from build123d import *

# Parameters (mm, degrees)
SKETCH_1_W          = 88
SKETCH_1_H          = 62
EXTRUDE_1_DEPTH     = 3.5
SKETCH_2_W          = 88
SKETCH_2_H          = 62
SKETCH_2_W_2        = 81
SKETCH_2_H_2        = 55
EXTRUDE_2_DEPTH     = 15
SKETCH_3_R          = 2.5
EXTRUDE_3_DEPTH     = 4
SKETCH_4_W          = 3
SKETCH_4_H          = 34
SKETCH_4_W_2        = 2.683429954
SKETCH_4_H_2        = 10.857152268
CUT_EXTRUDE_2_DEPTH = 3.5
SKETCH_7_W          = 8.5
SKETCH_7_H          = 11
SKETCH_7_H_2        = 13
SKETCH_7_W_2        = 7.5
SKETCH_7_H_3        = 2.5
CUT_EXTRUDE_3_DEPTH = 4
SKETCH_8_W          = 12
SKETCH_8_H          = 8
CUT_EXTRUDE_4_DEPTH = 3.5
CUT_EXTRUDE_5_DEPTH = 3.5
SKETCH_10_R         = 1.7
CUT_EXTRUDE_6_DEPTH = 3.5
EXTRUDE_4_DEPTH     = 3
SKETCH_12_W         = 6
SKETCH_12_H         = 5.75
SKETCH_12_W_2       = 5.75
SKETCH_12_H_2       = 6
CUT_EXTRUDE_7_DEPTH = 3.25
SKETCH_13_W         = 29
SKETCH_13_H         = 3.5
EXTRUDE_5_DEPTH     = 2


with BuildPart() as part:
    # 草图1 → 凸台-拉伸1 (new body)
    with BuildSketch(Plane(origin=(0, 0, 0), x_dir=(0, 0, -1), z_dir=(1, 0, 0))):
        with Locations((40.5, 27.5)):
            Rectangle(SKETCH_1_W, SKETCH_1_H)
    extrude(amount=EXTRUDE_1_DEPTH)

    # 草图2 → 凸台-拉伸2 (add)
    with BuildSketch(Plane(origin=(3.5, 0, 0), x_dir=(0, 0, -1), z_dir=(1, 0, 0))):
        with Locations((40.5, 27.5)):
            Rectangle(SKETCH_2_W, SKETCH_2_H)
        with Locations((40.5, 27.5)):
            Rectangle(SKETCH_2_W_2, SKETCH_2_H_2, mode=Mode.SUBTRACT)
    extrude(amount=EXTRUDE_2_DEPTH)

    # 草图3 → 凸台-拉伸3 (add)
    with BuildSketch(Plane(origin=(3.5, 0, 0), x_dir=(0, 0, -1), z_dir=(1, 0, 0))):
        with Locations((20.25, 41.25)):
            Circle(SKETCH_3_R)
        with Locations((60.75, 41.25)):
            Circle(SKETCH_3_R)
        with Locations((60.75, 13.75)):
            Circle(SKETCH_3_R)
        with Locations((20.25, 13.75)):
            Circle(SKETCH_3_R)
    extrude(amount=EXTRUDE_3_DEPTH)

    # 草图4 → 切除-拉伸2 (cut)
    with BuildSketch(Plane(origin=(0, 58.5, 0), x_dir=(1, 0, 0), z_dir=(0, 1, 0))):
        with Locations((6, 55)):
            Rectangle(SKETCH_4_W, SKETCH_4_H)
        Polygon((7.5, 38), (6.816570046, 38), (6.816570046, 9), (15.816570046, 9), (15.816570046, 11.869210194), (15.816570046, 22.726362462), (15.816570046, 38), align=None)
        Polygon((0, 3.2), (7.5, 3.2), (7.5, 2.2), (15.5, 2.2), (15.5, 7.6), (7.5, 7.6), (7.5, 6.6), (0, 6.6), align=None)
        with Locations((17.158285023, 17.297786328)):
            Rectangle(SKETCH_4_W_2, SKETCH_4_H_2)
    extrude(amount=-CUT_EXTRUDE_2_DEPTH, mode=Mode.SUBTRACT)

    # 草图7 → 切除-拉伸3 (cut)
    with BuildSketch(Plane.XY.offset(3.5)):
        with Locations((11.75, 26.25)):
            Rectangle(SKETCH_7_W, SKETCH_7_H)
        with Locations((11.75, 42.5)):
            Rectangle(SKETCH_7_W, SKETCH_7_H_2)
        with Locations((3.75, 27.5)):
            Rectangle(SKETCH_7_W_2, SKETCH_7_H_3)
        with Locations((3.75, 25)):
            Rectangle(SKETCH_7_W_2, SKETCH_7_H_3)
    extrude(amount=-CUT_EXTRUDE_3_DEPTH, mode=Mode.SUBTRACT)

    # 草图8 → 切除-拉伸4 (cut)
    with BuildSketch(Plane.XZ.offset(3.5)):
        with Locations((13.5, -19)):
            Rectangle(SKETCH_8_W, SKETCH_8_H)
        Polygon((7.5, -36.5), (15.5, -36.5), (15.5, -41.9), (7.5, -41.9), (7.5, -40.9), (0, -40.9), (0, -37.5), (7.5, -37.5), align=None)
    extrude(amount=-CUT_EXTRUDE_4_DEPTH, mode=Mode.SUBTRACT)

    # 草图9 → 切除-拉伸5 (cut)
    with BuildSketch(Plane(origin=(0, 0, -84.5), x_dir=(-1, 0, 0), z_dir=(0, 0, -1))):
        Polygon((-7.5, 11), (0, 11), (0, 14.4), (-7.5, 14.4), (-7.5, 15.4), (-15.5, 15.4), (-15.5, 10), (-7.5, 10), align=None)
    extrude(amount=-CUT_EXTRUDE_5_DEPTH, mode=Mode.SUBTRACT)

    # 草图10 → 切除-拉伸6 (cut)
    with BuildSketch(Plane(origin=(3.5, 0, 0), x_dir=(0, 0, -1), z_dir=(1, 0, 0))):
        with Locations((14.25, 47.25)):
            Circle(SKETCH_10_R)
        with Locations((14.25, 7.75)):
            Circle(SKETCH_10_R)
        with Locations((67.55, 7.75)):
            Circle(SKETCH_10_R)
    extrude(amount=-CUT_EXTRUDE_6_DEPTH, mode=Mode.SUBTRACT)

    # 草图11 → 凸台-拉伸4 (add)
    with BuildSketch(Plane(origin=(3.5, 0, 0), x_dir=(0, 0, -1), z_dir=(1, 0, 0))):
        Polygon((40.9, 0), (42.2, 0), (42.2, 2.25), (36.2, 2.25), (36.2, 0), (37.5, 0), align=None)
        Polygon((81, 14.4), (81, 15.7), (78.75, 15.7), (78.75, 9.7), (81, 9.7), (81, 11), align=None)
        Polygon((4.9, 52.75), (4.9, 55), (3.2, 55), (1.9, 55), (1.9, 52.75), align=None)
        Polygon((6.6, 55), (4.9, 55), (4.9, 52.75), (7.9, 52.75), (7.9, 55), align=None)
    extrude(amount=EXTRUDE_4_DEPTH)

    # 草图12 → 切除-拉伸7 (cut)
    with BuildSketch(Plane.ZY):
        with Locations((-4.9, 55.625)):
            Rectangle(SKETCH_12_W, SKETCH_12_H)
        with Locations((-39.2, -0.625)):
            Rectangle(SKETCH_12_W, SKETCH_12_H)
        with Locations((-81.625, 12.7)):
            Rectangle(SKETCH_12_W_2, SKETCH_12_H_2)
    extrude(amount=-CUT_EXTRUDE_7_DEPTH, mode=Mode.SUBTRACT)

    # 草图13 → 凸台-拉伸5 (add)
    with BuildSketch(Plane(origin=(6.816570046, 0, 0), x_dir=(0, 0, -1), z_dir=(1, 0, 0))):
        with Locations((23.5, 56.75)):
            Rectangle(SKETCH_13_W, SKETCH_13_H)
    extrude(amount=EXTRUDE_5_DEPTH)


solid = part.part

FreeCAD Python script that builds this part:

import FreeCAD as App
import Part
import Sketcher

V = App.Vector
Q = App.Units.Quantity

doc = App.newDocument("Part")
params = doc.addObject("Spreadsheet::Sheet", "Params")
for row, (alias, value) in enumerate([
    ("sketch1_width", "62 mm"),
    ("sketch1_height", "88 mm"),
    ("pad1_length", "3.5 mm"),
    ("sketch2_width", "62 mm"),
    ("sketch2_width2", "55 mm"),
    ("sketch2_height", "88 mm"),
    ("sketch2_height2", "81 mm"),
    ("pad2_length", "15 mm"),
    ("sketch3_diameter", "5 mm"),
    ("pad3_length", "4 mm"),
    ("sketch4_width", "9 mm"),
    ("sketch4_width2", "3 mm"),
    ("sketch4_width3", "8 mm"),
    ("sketch4_height", "34 mm"),
    ("sketch4_height2", "29 mm"),
    ("pocket1_length", "3.5 mm"),
    ("sketch5_height", "3 mm"),
    ("sketch5_height2", "11 mm"),
    ("sketch5_height3", "13 mm"),
    ("sketch5_width", "8.5 mm"),
    ("sketch5_width2", "7.5 mm"),
    ("pocket2_length", "4 mm"),
    ("sketch6_width", "12 mm"),
    ("sketch6_width2", "8 mm"),
    ("sketch6_height", "1 mm"),
    ("sketch6_width3", "7.5 mm"),
    ("sketch6_height2", "3.4 mm"),
    ("pocket3_length", "3.5 mm"),
    ("sketch7_width", "8 mm"),
    ("sketch7_height", "1 mm"),
    ("sketch7_width2", "7.5 mm"),
    ("sketch7_height2", "3.4 mm"),
    ("pocket4_length", "3.5 mm"),
    ("sketch8_diameter", "3.4 mm"),
    ("pocket5_length", "3.5 mm"),
    ("sketch9_width", "6 mm"),
    ("sketch9_width2", "2.25 mm"),
    ("pad4_length", "3 mm"),
    ("sketch10_width", "6 mm"),
    ("sketch10_width2", "5.75 mm"),
    ("pocket6_length", "3.25 mm"),
    ("sketch11_height", "29 mm"),
    ("sketch11_width", "3.5 mm"),
    ("pad5_length", "2 mm"),
], start=1):
    params.set(f"A{row}", alias)
    params.set(f"B{row}", "=" + value)
    params.setAlias(f"B{row}", alias)

body = doc.addObject("PartDesign::Body", "Body")

# Sketch on YZ plane
sketch1 = doc.addObject("Sketcher::SketchObject", "Sketch")
body.addObject(sketch1)
sketch1.AttachmentSupport = (doc.YZ_Plane, [""])
sketch1.MapMode = "FlatFace"
sketch1.addGeometry([
    Part.LineSegment(V(58, 4, 0), V(-4, 4, 0)),
    Part.LineSegment(V(-4, 4, 0), V(-4, -84, 0)),
    Part.LineSegment(V(-4, -84, 0), V(58, -84, 0)),
    Part.LineSegment(V(58, -84, 0), V(58, 4, 0)),
], False)
sketch1.addConstraint([
    Sketcher.Constraint("Coincident", 0, 2, 1, 1),
    Sketcher.Constraint("Coincident", 1, 2, 2, 1),
    Sketcher.Constraint("Coincident", 2, 2, 3, 1),
    Sketcher.Constraint("Coincident", 3, 2, 0, 1),
    Sketcher.Constraint("Horizontal", 0),
    Sketcher.Constraint("Vertical", 1),
    Sketcher.Constraint("Horizontal", 2),
    Sketcher.Constraint("Vertical", 3),
    Sketcher.Constraint("DistanceX", 0, 2, 0, 1, Q("62 mm")),
    Sketcher.Constraint("DistanceY", 1, 2, 1, 1, Q("88 mm")),
    Sketcher.Constraint("DistanceX", 0, 2, -1, 1, Q("3.5 mm")),
    Sketcher.Constraint("DistanceY", -1, 1, 0, 2, Q("3.5 mm")),
])
sketch1.setExpression("Constraints[8]", "Params.sketch1_width")
sketch1.setExpression("Constraints[9]", "Params.sketch1_height")
pad1 = doc.addObject("PartDesign::Pad", "Pad")
body.addObject(pad1)
pad1.Profile = sketch1
pad1.setExpression("Length", "Params.pad1_length")

# Sketch on YZ plane
sketch2 = doc.addObject("Sketcher::SketchObject", "Sketch001")
body.addObject(sketch2)
sketch2.AttachmentSupport = (doc.YZ_Plane, [""])
sketch2.MapMode = "FlatFace"
sketch2.AttachmentOffset = App.Placement(V(0, 0, 3.5), App.Rotation())
sketch2.addGeometry([
    Part.LineSegment(V(58, 4, 0), V(-4, 4, 0)),  # 0
    Part.LineSegment(V(-4, 4, 0), V(-4, -84, 0)),  # 1
    Part.LineSegment(V(-4, -84, 0), V(58, -84, 0)),  # 2
    Part.LineSegment(V(58, -84, 0), V(58, 4, 0)),  # 3
    Part.LineSegment(V(0, -81, 0), V(0, 0, 0)),  # 4
    Part.LineSegment(V(0, 0, 0), V(55, 0, 0)),  # 5
    Part.LineSegment(V(55, 0, 0), V(55, -81, 0)),  # 6
    Part.LineSegment(V(55, -81, 0), V(0, -81, 0)),  # 7
], False)
sketch2.addConstraint([
    Sketcher.Constraint("Coincident", 0, 2, 1, 1),
    Sketcher.Constraint("Coincident", 1, 2, 2, 1),
    Sketcher.Constraint("Coincident", 2, 2, 3, 1),
    Sketcher.Constraint("Coincident", 3, 2, 0, 1),
    Sketcher.Constraint("Coincident", 4, 2, 5, 1),
    Sketcher.Constraint("Coincident", 5, 2, 6, 1),
    Sketcher.Constraint("Coincident", 6, 2, 7, 1),
    Sketcher.Constraint("Coincident", 7, 2, 4, 1),
    Sketcher.Constraint("Horizontal", 0),
    Sketcher.Constraint("Vertical", 1),
    Sketcher.Constraint("Horizontal", 2),
    Sketcher.Constraint("Vertical", 3),
    Sketcher.Constraint("Vertical", 4),
    Sketcher.Constraint("Horizontal", 5),
    Sketcher.Constraint("Vertical", 6),
    Sketcher.Constraint("Horizontal", 7),
    Sketcher.Constraint("Coincident", 4, 2, -1, 1),
    Sketcher.Constraint("DistanceX", 0, 2, 0, 1, Q("62 mm")),
    Sketcher.Constraint("DistanceX", 5, 1, 5, 2, Q("55 mm")),
    Sketcher.Constraint("DistanceY", 1, 2, 1, 1, Q("88 mm")),
    Sketcher.Constraint("DistanceY", 4, 1, 4, 2, Q("81 mm")),
    Sketcher.Constraint("DistanceX", 0, 2, -1, 1, Q("3.5 mm")),
    Sketcher.Constraint("DistanceY", -1, 1, 0, 2, Q("3.5 mm")),
])
sketch2.setExpression("Constraints[17]", "Params.sketch2_width")
sketch2.setExpression("Constraints[18]", "Params.sketch2_width2")
sketch2.setExpression("Constraints[19]", "Params.sketch2_height")
sketch2.setExpression("Constraints[20]", "Params.sketch2_height2")
pad2 = doc.addObject("PartDesign::Pad", "Pad001")
body.addObject(pad2)
pad2.Profile = sketch2
pad2.setExpression("Length", "Params.pad2_length")

# Sketch on YZ plane
sketch3 = doc.addObject("Sketcher::SketchObject", "Sketch002")
body.addObject(sketch3)
sketch3.AttachmentSupport = (doc.YZ_Plane, [""])
sketch3.MapMode = "FlatFace"
sketch3.AttachmentOffset = App.Placement(V(0, 0, 3.5), App.Rotation())
sketch3.addGeometry([
    Part.Circle(V(41.2, -20.2, 0), V(0, 0, 1), 2.5),
    Part.Circle(V(41.2, -60.8, 0), V(0, 0, 1), 2.5),
    Part.Circle(V(13.8, -60.8, 0), V(0, 0, 1), 2.5),
    Part.Circle(V(13.8, -20.2, 0), V(0, 0, 1), 2.5),
], False)
sketch3.addConstraint([
    Sketcher.Constraint("Equal", 0, 1),
    Sketcher.Constraint("Equal", 1, 2),
    Sketcher.Constraint("Equal", 2, 3),
    Sketcher.Constraint("Horizontal", 1, 3, 2, 3),
    Sketcher.Constraint("Horizontal", 0, 3, 3, 3),
    Sketcher.Constraint("Vertical", 0, 3, 1, 3),
    Sketcher.Constraint("Vertical", 2, 3, 3, 3),
    Sketcher.Constraint("Diameter", 0, Q("5 mm")),
    Sketcher.Constraint("DistanceY", 1, 3, 0, 3, Q("40.5 mm")),
    Sketcher.Constraint("DistanceX", 2, 3, 1, 3, Q("27.5 mm")),
    Sketcher.Constraint("DistanceX", -1, 1, 0, 3, Q("41.25 mm")),
    Sketcher.Constraint("DistanceY", 0, 3, -1, 1, Q("20.25 mm")),
])
sketch3.setExpression("Constraints[7]", "Params.sketch3_diameter")
pad3 = doc.addObject("PartDesign::Pad", "Pad002")
body.addObject(pad3)
pad3.Profile = sketch3
pad3.setExpression("Length", "Params.pad3_length")

# Sketch on XZ plane
sketch4 = doc.addObject("Sketcher::SketchObject", "Sketch003")
body.addObject(sketch4)
sketch4.AttachmentSupport = (doc.XZ_Plane, [""])
sketch4.MapMode = "FlatFace"
sketch4.AttachmentOffset = App.Placement(V(0, 0, -58.5), App.Rotation())
sketch4.addGeometry([
    Part.LineSegment(V(4.5, -72, 0), V(4.5, -38, 0)),  # 0
    Part.LineSegment(V(4.5, -38, 0), V(6.8, -38, 0)),  # 1
    Part.LineSegment(V(6.8, -38, 0), V(6.8, -9, 0)),  # 2
    Part.LineSegment(V(6.8, -9, 0), V(15.8, -9, 0)),  # 3
    Part.LineSegment(V(15.8, -9, 0), V(15.8, -11.9, 0)),  # 4
    Part.LineSegment(V(15.8, -11.9, 0), V(18.5, -11.9, 0)),  # 5
    Part.LineSegment(V(18.5, -11.9, 0), V(18.5, -22.7, 0)),  # 6
    Part.LineSegment(V(18.5, -22.7, 0), V(15.8, -22.7, 0)),  # 7
    Part.LineSegment(V(15.8, -22.7, 0), V(15.8, -38, 0)),  # 8
    Part.LineSegment(V(15.8, -38, 0), V(7.5, -38, 0)),  # 9
    Part.LineSegment(V(7.5, -38, 0), V(7.5, -72, 0)),  # 10
    Part.LineSegment(V(7.5, -72, 0), V(4.5, -72, 0)),  # 11
    Part.LineSegment(V(0, -3.2, 0), V(7.5, -3.2, 0)),  # 12
    Part.LineSegment(V(7.5, -3.2, 0), V(7.5, -2.2, 0)),  # 13
    Part.LineSegment(V(7.5, -2.2, 0), V(15.5, -2.2, 0)),  # 14
    Part.LineSegment(V(15.5, -2.2, 0), V(15.5, -7.6, 0)),  # 15
    Part.LineSegment(V(15.5, -7.6, 0), V(7.5, -7.6, 0)),  # 16
    Part.LineSegment(V(7.5, -7.6, 0), V(7.5, -6.6, 0)),  # 17
    Part.LineSegment(V(7.5, -6.6, 0), V(0, -6.6, 0)),  # 18
    Part.LineSegment(V(0, -6.6, 0), V(0, -3.2, 0)),  # 19
], False)
sketch4.addConstraint([
    Sketcher.Constraint("Coincident", 0, 2, 1, 1),
    Sketcher.Constraint("Coincident", 1, 2, 2, 1),
    Sketcher.Constraint("Coincident", 2, 2, 3, 1),
    Sketcher.Constraint("Coincident", 3, 2, 4, 1),
    Sketcher.Constraint("Coincident", 4, 2, 5, 1),
    Sketcher.Constraint("Coincident", 5, 2, 6, 1),
    Sketcher.Constraint("Coincident", 6, 2, 7, 1),
    Sketcher.Constraint("Coincident", 7, 2, 8, 1),
    Sketcher.Constraint("Coincident", 8, 2, 9, 1),
    Sketcher.Constraint("Coincident", 9, 2, 10, 1),
    Sketcher.Constraint("Coincident", 10, 2, 11, 1),
    Sketcher.Constraint("Coincident", 11, 2, 0, 1),
    Sketcher.Constraint("Coincident", 12, 2, 13, 1),
    Sketcher.Constraint("Coincident", 13, 2, 14, 1),
    Sketcher.Constraint("Coincident", 14, 2, 15, 1),
    Sketcher.Constraint("Coincident", 15, 2, 16, 1),
    Sketcher.Constraint("Coincident", 16, 2, 17, 1),
    Sketcher.Constraint("Coincident", 17, 2, 18, 1),
    Sketcher.Constraint("Coincident", 18, 2, 19, 1),
    Sketcher.Constraint("Coincident", 19, 2, 12, 1),
    Sketcher.Constraint("Vertical", 0),
    Sketcher.Constraint("Horizontal", 1),
    Sketcher.Constraint("Vertical", 2),
    Sketcher.Constraint("Horizontal", 3),
    Sketcher.Constraint("Vertical", 4),
    Sketcher.Constraint("Horizontal", 5),
    Sketcher.Constraint("Vertical", 6),
    Sketcher.Constraint("Horizontal", 7),
    Sketcher.Constraint("Vertical", 8),
    Sketcher.Constraint("Horizontal", 9),
    Sketcher.Constraint("Vertical", 10),
    Sketcher.Constraint("Horizontal", 11),
    Sketcher.Constraint("Horizontal", 12),
    Sketcher.Constraint("Vertical", 13),
    Sketcher.Constraint("Horizontal", 14),
    Sketcher.Constraint("Vertical", 15),
    Sketcher.Constraint("Horizontal", 16),
    Sketcher.Constraint("Vertical", 17),
    Sketcher.Constraint("Horizontal", 18),
    Sketcher.Constraint("Vertical", 19),
    Sketcher.Constraint("PointOnObject", 18, 2, -2),
    Sketcher.Constraint("Horizontal", 1, 2, 8, 2),
    Sketcher.Constraint("Vertical", 4, 2, 7, 2),
    Sketcher.Constraint("Vertical", 10, 2, 12, 2),
    Sketcher.Constraint("Vertical", 13, 2, 16, 2),
    Sketcher.Constraint("Equal", 13, 17),
    Sketcher.Constraint("DistanceX", 3, 1, 3, 2, Q("9 mm")),
    Sketcher.Constraint("DistanceX", 11, 2, 11, 1, Q("3 mm")),
    Sketcher.Constraint("DistanceX", 14, 1, 14, 2, Q("8 mm")),
    Sketcher.Constraint("DistanceY", 0, 1, 0, 2, Q("34 mm")),
    Sketcher.Constraint("DistanceY", 2, 1, 2, 2, Q("29 mm")),
    Sketcher.Constraint("DistanceY", 13, 1, 13, 2, Q("1 mm")),
    Sketcher.Constraint("DistanceX", 12, 1, 12, 2, Q("7.5 mm")),
    Sketcher.Constraint("DistanceY", 15, 2, 15, 1, Q("5.4 mm")),
    Sketcher.Constraint("DistanceY", 0, 2, -1, 1, Q("38 mm")),
    Sketcher.Constraint("DistanceX", 0, 2, 5, 2, Q("14 mm")),
    Sketcher.Constraint("DistanceY", 12, 2, -1, 1, Q("3.2 mm")),
    Sketcher.Constraint("DistanceX", 1, 1, 1, 2, Q("2.31657 mm")),
    Sketcher.Constraint("DistanceY", 4, 2, 4, 1, Q("2.86921 mm")),
    Sketcher.Constraint("DistanceY", 6, 2, 6, 1, Q("10.857152 mm")),
])
sketch4.setExpression("Constraints[46]", "Params.sketch4_width")
sketch4.setExpression("Constraints[47]", "Params.sketch4_width2")
sketch4.setExpression("Constraints[48]", "Params.sketch4_width3")
sketch4.setExpression("Constraints[49]", "Params.sketch4_height")
sketch4.setExpression("Constraints[50]", "Params.sketch4_height2")
pocket1 = doc.addObject("PartDesign::Pocket", "Pocket")
body.addObject(pocket1)
pocket1.Profile = sketch4
pocket1.setExpression("Length", "Params.pocket1_length")
pocket1.Reversed = True

# Sketch on XY plane
sketch5 = doc.addObject("Sketcher::SketchObject", "Sketch004")
body.addObject(sketch5)
sketch5.AttachmentSupport = (doc.XY_Plane, [""])
sketch5.MapMode = "FlatFace"
sketch5.AttachmentOffset = App.Placement(V(0, 0, 3.5), App.Rotation())
sketch5.addGeometry([
    Part.LineSegment(V(7.5, 23.8, 0), V(7.5, 20.8, 0)),  # 0
    Part.LineSegment(V(7.5, 20.8, 0), V(16, 20.8, 0)),  # 1
    Part.LineSegment(V(16, 20.8, 0), V(16, 31.8, 0)),  # 2
    Part.LineSegment(V(16, 31.8, 0), V(7.5, 31.8, 0)),  # 3
    Part.LineSegment(V(7.5, 31.8, 0), V(7.5, 28.8, 0)),  # 4
    Part.LineSegment(V(7.5, 28.8, 0), V(0, 28.8, 0)),  # 5
    Part.LineSegment(V(0, 28.8, 0), V(0, 23.8, 0)),  # 6
    Part.LineSegment(V(0, 23.8, 0), V(7.5, 23.8, 0)),  # 7
    Part.LineSegment(V(7.5, 49, 0), V(7.5, 36, 0)),  # 8
    Part.LineSegment(V(7.5, 36, 0), V(16, 36, 0)),  # 9
    Part.LineSegment(V(16, 36, 0), V(16, 49, 0)),  # 10
    Part.LineSegment(V(16, 49, 0), V(7.5, 49, 0)),  # 11
], False)
sketch5.addConstraint([
    Sketcher.Constraint("Coincident", 0, 2, 1, 1),
    Sketcher.Constraint("Coincident", 1, 2, 2, 1),
    Sketcher.Constraint("Coincident", 2, 2, 3, 1),
    Sketcher.Constraint("Coincident", 3, 2, 4, 1),
    Sketcher.Constraint("Coincident", 4, 2, 5, 1),
    Sketcher.Constraint("Coincident", 5, 2, 6, 1),
    Sketcher.Constraint("Coincident", 6, 2, 7, 1),
    Sketcher.Constraint("Coincident", 7, 2, 0, 1),
    Sketcher.Constraint("Coincident", 8, 2, 9, 1),
    Sketcher.Constraint("Coincident", 9, 2, 10, 1),
    Sketcher.Constraint("Coincident", 10, 2, 11, 1),
    Sketcher.Constraint("Coincident", 11, 2, 8, 1),
    Sketcher.Constraint("Vertical", 0),
    Sketcher.Constraint("Horizontal", 1),
    Sketcher.Constraint("Vertical", 2),
    Sketcher.Constraint("Horizontal", 3),
    Sketcher.Constraint("Vertical", 4),
    Sketcher.Constraint("Horizontal", 5),
    Sketcher.Constraint("Vertical", 6),
    Sketcher.Constraint("Horizontal", 7),
    Sketcher.Constraint("Vertical", 8),
    Sketcher.Constraint("Horizontal", 9),
    Sketcher.Constraint("Vertical", 10),
    Sketcher.Constraint("Horizontal", 11),
    Sketcher.Constraint("PointOnObject", 5, 2, -2),
    Sketcher.Constraint("Vertical", 0, 2, 3, 2),
    Sketcher.Constraint("Vertical", 7, 2, 8, 2),
    Sketcher.Constraint("Vertical", 2, 2, 9, 2),
    Sketcher.Constraint("Equal", 0, 4),
    Sketcher.Constraint("DistanceY", 0, 2, 0, 1, Q("3 mm")),
    Sketcher.Constraint("DistanceY", 2, 1, 2, 2, Q("11 mm")),
    Sketcher.Constraint("DistanceY", 8, 2, 8, 1, Q("13 mm")),
    Sketcher.Constraint("DistanceX", 1, 1, 1, 2, Q("8.5 mm")),
    Sketcher.Constraint("DistanceX", 5, 2, 5, 1, Q("7.5 mm")),
    Sketcher.Constraint("DistanceY", -1, 1, 8, 2, Q("36 mm")),
    Sketcher.Constraint("DistanceY", -1, 1, 0, 2, Q("20.75 mm")),
])
sketch5.setExpression("Constraints[29]", "Params.sketch5_height")
sketch5.setExpression("Constraints[30]", "Params.sketch5_height2")
sketch5.setExpression("Constraints[31]", "Params.sketch5_height3")
sketch5.setExpression("Constraints[32]", "Params.sketch5_width")
sketch5.setExpression("Constraints[33]", "Params.sketch5_width2")
pocket2 = doc.addObject("PartDesign::Pocket", "Pocket001")
body.addObject(pocket2)
pocket2.Profile = sketch5
pocket2.setExpression("Length", "Params.pocket2_length")

# Sketch on XZ plane
sketch6 = doc.addObject("Sketcher::SketchObject", "Sketch005")
body.addObject(sketch6)
sketch6.AttachmentSupport = (doc.XZ_Plane, [""])
sketch6.MapMode = "FlatFace"
sketch6.AttachmentOffset = App.Placement(V(0, 0, 3.5), App.Rotation())
sketch6.addGeometry([
    Part.LineSegment(V(7.5, -15, 0), V(7.5, -23, 0)),  # 0
    Part.LineSegment(V(7.5, -23, 0), V(19.5, -23, 0)),  # 1
    Part.LineSegment(V(19.5, -23, 0), V(19.5, -15, 0)),  # 2
    Part.LineSegment(V(19.5, -15, 0), V(7.5, -15, 0)),  # 3
    Part.LineSegment(V(15.5, -36.5, 0), V(7.5, -36.5, 0)),  # 4
    Part.LineSegment(V(7.5, -36.5, 0), V(7.5, -37.5, 0)),  # 5
    Part.LineSegment(V(7.5, -37.5, 0), V(0, -37.5, 0)),  # 6
    Part.LineSegment(V(0, -37.5, 0), V(0, -40.9, 0)),  # 7
    Part.LineSegment(V(0, -40.9, 0), V(7.5, -40.9, 0)),  # 8
    Part.LineSegment(V(7.5, -40.9, 0), V(7.5, -41.9, 0)),  # 9
    Part.LineSegment(V(7.5, -41.9, 0), V(15.5, -41.9, 0)),  # 10
    Part.LineSegment(V(15.5, -41.9, 0), V(15.5, -36.5, 0)),  # 11
], False)
sketch6.addConstraint([
    Sketcher.Constraint("Coincident", 0, 2, 1, 1),
    Sketcher.Constraint("Coincident", 1, 2, 2, 1),
    Sketcher.Constraint("Coincident", 2, 2, 3, 1),
    Sketcher.Constraint("Coincident", 3, 2, 0, 1),
    Sketcher.Constraint("Coincident", 4, 2, 5, 1),
    Sketcher.Constraint("Coincident", 5, 2, 6, 1),
    Sketcher.Constraint("Coincident", 6, 2, 7, 1),
    Sketcher.Constraint("Coincident", 7, 2, 8, 1),
    Sketcher.Constraint("Coincident", 8, 2, 9, 1),
    Sketcher.Constraint("Coincident", 9, 2, 10, 1),
    Sketcher.Constraint("Coincident", 10, 2, 11, 1),
    Sketcher.Constraint("Coincident", 11, 2, 4, 1),
    Sketcher.Constraint("Vertical", 0),
    Sketcher.Constraint("Horizontal", 1),
    Sketcher.Constraint("Vertical", 2),
    Sketcher.Constraint("Horizontal", 3),
    Sketcher.Constraint("Horizontal", 4),
    Sketcher.Constraint("Vertical", 5),
    Sketcher.Constraint("Horizontal", 6),
    Sketcher.Constraint("Vertical", 7),
    Sketcher.Constraint("Horizontal", 8),
    Sketcher.Constraint("Vertical", 9),
    Sketcher.Constraint("Horizontal", 10),
    Sketcher.Constraint("Vertical", 11),
    Sketcher.Constraint("PointOnObject", 6, 2, -2),
    Sketcher.Constraint("Vertical", 3, 2, 4, 2),
    Sketcher.Constraint("Vertical", 5, 2, 8, 2),
    Sketcher.Constraint("Equal", 10, 0),
    Sketcher.Constraint("Equal", 5, 9),
    Sketcher.Constraint("DistanceX", 1, 1, 1, 2, Q("12 mm")),
    Sketcher.Constraint("DistanceX", 4, 2, 4, 1, Q("8 mm")),
    Sketcher.Constraint("DistanceY", 5, 2, 5, 1, Q("1 mm")),
    Sketcher.Constraint("DistanceX", 6, 2, 6, 1, Q("7.5 mm")),
    Sketcher.Constraint("DistanceY", 7, 2, 7, 1, Q("3.4 mm")),
    Sketcher.Constraint("DistanceY", 0, 2, -1, 1, Q("23 mm")),
    Sketcher.Constraint("DistanceY", 4, 2, -1, 1, Q("36.5 mm")),
])
sketch6.setExpression("Constraints[29]", "Params.sketch6_width")
sketch6.setExpression("Constraints[30]", "Params.sketch6_width2")
sketch6.setExpression("Constraints[31]", "Params.sketch6_height")
sketch6.setExpression("Constraints[32]", "Params.sketch6_width3")
sketch6.setExpression("Constraints[33]", "Params.sketch6_height2")
pocket3 = doc.addObject("PartDesign::Pocket", "Pocket002")
body.addObject(pocket3)
pocket3.Profile = sketch6
pocket3.setExpression("Length", "Params.pocket3_length")

# Sketch on XY plane
sketch7 = doc.addObject("Sketcher::SketchObject", "Sketch006")
body.addObject(sketch7)
sketch7.AttachmentSupport = (doc.XY_Plane, [""])
sketch7.MapMode = "FlatFace"
sketch7.AttachmentOffset = App.Placement(V(0, 0, -84.5), App.Rotation())
sketch7.addGeometry([
    Part.LineSegment(V(7.5, 11, 0), V(0, 11, 0)),  # 0
    Part.LineSegment(V(0, 11, 0), V(0, 14.4, 0)),  # 1
    Part.LineSegment(V(0, 14.4, 0), V(7.5, 14.4, 0)),  # 2
    Part.LineSegment(V(7.5, 14.4, 0), V(7.5, 15.4, 0)),  # 3
    Part.LineSegment(V(7.5, 15.4, 0), V(15.5, 15.4, 0)),  # 4
    Part.LineSegment(V(15.5, 15.4, 0), V(15.5, 10, 0)),  # 5
    Part.LineSegment(V(15.5, 10, 0), V(7.5, 10, 0)),  # 6
    Part.LineSegment(V(7.5, 10, 0), V(7.5, 11, 0)),  # 7
], False)
sketch7.addConstraint([
    Sketcher.Constraint("Coincident", 0, 2, 1, 1),
    Sketcher.Constraint("Coincident", 1, 2, 2, 1),
    Sketcher.Constraint("Coincident", 2, 2, 3, 1),
    Sketcher.Constraint("Coincident", 3, 2, 4, 1),
    Sketcher.Constraint("Coincident", 4, 2, 5, 1),
    Sketcher.Constraint("Coincident", 5, 2, 6, 1),
    Sketcher.Constraint("Coincident", 6, 2, 7, 1),
    Sketcher.Constraint("Coincident", 7, 2, 0, 1),
    Sketcher.Constraint("Horizontal", 0),
    Sketcher.Constraint("Vertical", 1),
    Sketcher.Constraint("Horizontal", 2),
    Sketcher.Constraint("Vertical", 3),
    Sketcher.Constraint("Horizontal", 4),
    Sketcher.Constraint("Vertical", 5),
    Sketcher.Constraint("Horizontal", 6),
    Sketcher.Constraint("Vertical", 7),
    Sketcher.Constraint("PointOnObject", 0, 2, -2),
    Sketcher.Constraint("Vertical", 3, 2, 6, 2),
    Sketcher.Constraint("Equal", 3, 7),
    Sketcher.Constraint("DistanceX", 4, 1, 4, 2, Q("8 mm")),
    Sketcher.Constraint("DistanceY", 3, 1, 3, 2, Q("1 mm")),
    Sketcher.Constraint("DistanceX", 0, 2, 0, 1, Q("7.5 mm")),
    Sketcher.Constraint("DistanceY", 1, 1, 1, 2, Q("3.4 mm")),
    Sketcher.Constraint("DistanceY", -1, 1, 0, 2, Q("11 mm")),
])
sketch7.setExpression("Constraints[19]", "Params.sketch7_width")
sketch7.setExpression("Constraints[20]", "Params.sketch7_height")
sketch7.setExpression("Constraints[21]", "Params.sketch7_width2")
sketch7.setExpression("Constraints[22]", "Params.sketch7_height2")
pocket4 = doc.addObject("PartDesign::Pocket", "Pocket003")
body.addObject(pocket4)
pocket4.Profile = sketch7
pocket4.setExpression("Length", "Params.pocket4_length")
pocket4.Reversed = True

# Sketch on YZ plane
sketch8 = doc.addObject("Sketcher::SketchObject", "Sketch007")
body.addObject(sketch8)
sketch8.AttachmentSupport = (doc.YZ_Plane, [""])
sketch8.MapMode = "FlatFace"
sketch8.AttachmentOffset = App.Placement(V(0, 0, 3.5), App.Rotation())
sketch8.addGeometry([
    Part.Circle(V(47.2, -14.2, 0), V(0, 0, 1), 1.7),
    Part.Circle(V(7.8, -14.2, 0), V(0, 0, 1), 1.7),
    Part.Circle(V(7.8, -67.5, 0), V(0, 0, 1), 1.7),
], False)
sketch8.addConstraint([
    Sketcher.Constraint("Equal", 0, 1),
    Sketcher.Constraint("Equal", 1, 2),
    Sketcher.Constraint("Horizontal", 0, 3, 1, 3),
    Sketcher.Constraint("Vertical", 1, 3, 2, 3),
    Sketcher.Constraint("Diameter", 0, Q("3.4 mm")),
    Sketcher.Constraint("DistanceX", 1, 3, 0, 3, Q("39.5 mm")),
    Sketcher.Constraint("DistanceY", 2, 3, 1, 3, Q("53.3 mm")),
    Sketcher.Constraint("DistanceX", -1, 1, 0, 3, Q("47.25 mm")),
    Sketcher.Constraint("DistanceY", 0, 3, -1, 1, Q("14.25 mm")),
])
sketch8.setExpression("Constraints[4]", "Params.sketch8_diameter")
pocket5 = doc.addObject("PartDesign::Pocket", "Pocket004")
body.addObject(pocket5)
pocket5.Profile = sketch8
pocket5.setExpression("Length", "Params.pocket5_length")

# Sketch on YZ plane
sketch9 = doc.addObject("Sketcher::SketchObject", "Sketch008")
body.addObject(sketch9)
sketch9.AttachmentSupport = (doc.YZ_Plane, [""])
sketch9.MapMode = "FlatFace"
sketch9.AttachmentOffset = App.Placement(V(0, 0, 3.5), App.Rotation())
sketch9.addGeometry([
    Part.LineSegment(V(0, -42.2, 0), V(2.2, -42.2, 0)),  # 0
    Part.LineSegment(V(2.2, -42.2, 0), V(2.2, -36.2, 0)),  # 1
    Part.LineSegment(V(2.2, -36.2, 0), V(0, -36.2, 0)),  # 2
    Part.LineSegment(V(0, -36.2, 0), V(0, -42.2, 0)),  # 3
    Part.LineSegment(V(15.7, -81, 0), V(15.7, -78.8, 0)),  # 4
    Part.LineSegment(V(15.7, -78.8, 0), V(9.7, -78.8, 0)),  # 5
    Part.LineSegment(V(9.7, -78.8, 0), V(9.7, -81, 0)),  # 6
    Part.LineSegment(V(9.7, -81, 0), V(15.7, -81, 0)),  # 7
    Part.LineSegment(V(55, -1.9, 0), V(52.8, -1.9, 0)),  # 8
    Part.LineSegment(V(52.8, -1.9, 0), V(52.8, -7.9, 0)),  # 9
    Part.LineSegment(V(52.8, -7.9, 0), V(55, -7.9, 0)),  # 10
    Part.LineSegment(V(55, -7.9, 0), V(55, -1.9, 0)),  # 11
], False)
sketch9.addConstraint([
    Sketcher.Constraint("Coincident", 0, 2, 1, 1),
    Sketcher.Constraint("Coincident", 1, 2, 2, 1),
    Sketcher.Constraint("Coincident", 2, 2, 3, 1),
    Sketcher.Constraint("Coincident", 3, 2, 0, 1),
    Sketcher.Constraint("Coincident", 4, 2, 5, 1),
    Sketcher.Constraint("Coincident", 5, 2, 6, 1),
    Sketcher.Constraint("Coincident", 6, 2, 7, 1),
    Sketcher.Constraint("Coincident", 7, 2, 4, 1),
    Sketcher.Constraint("Coincident", 8, 2, 9, 1),
    Sketcher.Constraint("Coincident", 9, 2, 10, 1),
    Sketcher.Constraint("Coincident", 10, 2, 11, 1),
    Sketcher.Constraint("Coincident", 11, 2, 8, 1),
    Sketcher.Constraint("Horizontal", 0),
    Sketcher.Constraint("Vertical", 1),
    Sketcher.Constraint("Horizontal", 2),
    Sketcher.Constraint("Vertical", 3),
    Sketcher.Constraint("Vertical", 4),
    Sketcher.Constraint("Horizontal", 5),
    Sketcher.Constraint("Vertical", 6),
    Sketcher.Constraint("Horizontal", 7),
    Sketcher.Constraint("Horizontal", 8),
    Sketcher.Constraint("Vertical", 9),
    Sketcher.Constraint("Horizontal", 10),
    Sketcher.Constraint("Vertical", 11),
    Sketcher.Constraint("PointOnObject", 2, 2, -2),
    Sketcher.Constraint("Equal", 2, 8),
    Sketcher.Constraint("Equal", 7, 1),
    Sketcher.Constraint("Equal", 10, 4),
    Sketcher.Constraint("Equal", 3, 9),
    Sketcher.Constraint("DistanceX", 5, 2, 5, 1, Q("6 mm")),
    Sketcher.Constraint("DistanceY", 6, 2, -1, 1, Q("81 mm")),
    Sketcher.Constraint("DistanceX", -1, 1, 10, 2, Q("55 mm")),
    Sketcher.Constraint("DistanceX", 0, 1, 0, 2, Q("2.25 mm")),
    Sketcher.Constraint("DistanceY", 0, 2, -1, 1, Q("42.2 mm")),
    Sketcher.Constraint("DistanceX", -1, 1, 4, 2, Q("15.7 mm")),
    Sketcher.Constraint("DistanceY", 8, 2, -1, 1, Q("1.9 mm")),
])
sketch9.setExpression("Constraints[29]", "Params.sketch9_width")
sketch9.setExpression("Constraints[32]", "Params.sketch9_width2")
pad4 = doc.addObject("PartDesign::Pad", "Pad003")
body.addObject(pad4)
pad4.Profile = sketch9
pad4.setExpression("Length", "Params.pad4_length")

# Sketch on YZ plane
sketch10 = doc.addObject("Sketcher::SketchObject", "Sketch009")
body.addObject(sketch10)
sketch10.AttachmentSupport = (doc.YZ_Plane, [""])
sketch10.MapMode = "FlatFace"
sketch10.addGeometry([
    Part.LineSegment(V(58, -8, 0), V(53, -8, 0)),  # 0
    Part.LineSegment(V(53, -8, 0), V(53, -2, 0)),  # 1
    Part.LineSegment(V(53, -2, 0), V(58, -2, 0)),  # 2
    Part.LineSegment(V(58, -2, 0), V(58, -8, 0)),  # 3
    Part.LineSegment(V(2, -42, 0), V(-4, -42, 0)),  # 4
    Part.LineSegment(V(-4, -42, 0), V(-4, -36, 0)),  # 5
    Part.LineSegment(V(-4, -36, 0), V(2, -36, 0)),  # 6
    Part.LineSegment(V(2, -36, 0), V(2, -42, 0)),  # 7
    Part.LineSegment(V(16, -84, 0), V(10, -84, 0)),  # 8
    Part.LineSegment(V(10, -84, 0), V(10, -79, 0)),  # 9
    Part.LineSegment(V(10, -79, 0), V(16, -79, 0)),  # 10
    Part.LineSegment(V(16, -79, 0), V(16, -84, 0)),  # 11
], False)
sketch10.addConstraint([
    Sketcher.Constraint("Coincident", 0, 2, 1, 1),
    Sketcher.Constraint("Coincident", 1, 2, 2, 1),
    Sketcher.Constraint("Coincident", 2, 2, 3, 1),
    Sketcher.Constraint("Coincident", 3, 2, 0, 1),
    Sketcher.Constraint("Coincident", 4, 2, 5, 1),
    Sketcher.Constraint("Coincident", 5, 2, 6, 1),
    Sketcher.Constraint("Coincident", 6, 2, 7, 1),
    Sketcher.Constraint("Coincident", 7, 2, 4, 1),
    Sketcher.Constraint("Coincident", 8, 2, 9, 1),
    Sketcher.Constraint("Coincident", 9, 2, 10, 1),
    Sketcher.Constraint("Coincident", 10, 2, 11, 1),
    Sketcher.Constraint("Coincident", 11, 2, 8, 1),
    Sketcher.Constraint("Horizontal", 0),
    Sketcher.Constraint("Vertical", 1),
    Sketcher.Constraint("Horizontal", 2),
    Sketcher.Constraint("Vertical", 3),
    Sketcher.Constraint("Horizontal", 4),
    Sketcher.Constraint("Vertical", 5),
    Sketcher.Constraint("Horizontal", 6),
    Sketcher.Constraint("Vertical", 7),
    Sketcher.Constraint("Horizontal", 8),
    Sketcher.Constraint("Vertical", 9),
    Sketcher.Constraint("Horizontal", 10),
    Sketcher.Constraint("Vertical", 11),
    Sketcher.Constraint("Equal", 2, 4),
    Sketcher.Constraint("Equal", 10, 1),
    Sketcher.Constraint("Equal", 3, 5),
    Sketcher.Constraint("Equal", 6, 9),
    Sketcher.Constraint("DistanceX", 8, 2, 8, 1, Q("6 mm")),
    Sketcher.Constraint("DistanceX", 4, 2, 3, 2, Q("62 mm")),
    Sketcher.Constraint("DistanceX", 0, 2, 0, 1, Q("5.75 mm")),
    Sketcher.Constraint("DistanceY", 0, 2, -1, 1, Q("7.9 mm")),
    Sketcher.Constraint("DistanceX", -1, 1, 2, 2, Q("58.5 mm")),
    Sketcher.Constraint("DistanceY", 4, 2, -1, 1, Q("42.2 mm")),
    Sketcher.Constraint("DistanceX", -1, 1, 8, 2, Q("9.7 mm")),
    Sketcher.Constraint("DistanceY", 8, 2, -1, 1, Q("84.5 mm")),
])
sketch10.setExpression("Constraints[28]", "Params.sketch10_width")
sketch10.setExpression("Constraints[30]", "Params.sketch10_width2")
pocket6 = doc.addObject("PartDesign::Pocket", "Pocket005")
body.addObject(pocket6)
pocket6.Profile = sketch10
pocket6.setExpression("Length", "Params.pocket6_length")
pocket6.Reversed = True

# Sketch on YZ plane
sketch11 = doc.addObject("Sketcher::SketchObject", "Sketch010")
body.addObject(sketch11)
sketch11.AttachmentSupport = (doc.YZ_Plane, [""])
sketch11.MapMode = "FlatFace"
sketch11.AttachmentOffset = App.Placement(V(0, 0, 6.81657), App.Rotation())
sketch11.addGeometry([
    Part.LineSegment(V(58.5, -9, 0), V(55, -9, 0)),
    Part.LineSegment(V(55, -9, 0), V(55, -38, 0)),
    Part.LineSegment(V(55, -38, 0), V(58.5, -38, 0)),
    Part.LineSegment(V(58.5, -38, 0), V(58.5, -9, 0)),
], False)
sketch11.addConstraint([
    Sketcher.Constraint("Coincident", 0, 2, 1, 1),
    Sketcher.Constraint("Coincident", 1, 2, 2, 1),
    Sketcher.Constraint("Coincident", 2, 2, 3, 1),
    Sketcher.Constraint("Coincident", 3, 2, 0, 1),
    Sketcher.Constraint("Horizontal", 0),
    Sketcher.Constraint("Vertical", 1),
    Sketcher.Constraint("Horizontal", 2),
    Sketcher.Constraint("Vertical", 3),
    Sketcher.Constraint("DistanceY", 1, 2, 1, 1, Q("29 mm")),
    Sketcher.Constraint("DistanceX", 0, 2, 0, 1, Q("3.5 mm")),
    Sketcher.Constraint("DistanceX", -1, 1, 0, 2, Q("55 mm")),
    Sketcher.Constraint("DistanceY", 0, 2, -1, 1, Q("9 mm")),
])
sketch11.setExpression("Constraints[8]", "Params.sketch11_height")
sketch11.setExpression("Constraints[9]", "Params.sketch11_width")
pad5 = doc.addObject("PartDesign::Pad", "Pad004")
body.addObject(pad5)
pad5.Profile = sketch11
pad5.setExpression("Length", "Params.pad5_length")

doc.recompute()
